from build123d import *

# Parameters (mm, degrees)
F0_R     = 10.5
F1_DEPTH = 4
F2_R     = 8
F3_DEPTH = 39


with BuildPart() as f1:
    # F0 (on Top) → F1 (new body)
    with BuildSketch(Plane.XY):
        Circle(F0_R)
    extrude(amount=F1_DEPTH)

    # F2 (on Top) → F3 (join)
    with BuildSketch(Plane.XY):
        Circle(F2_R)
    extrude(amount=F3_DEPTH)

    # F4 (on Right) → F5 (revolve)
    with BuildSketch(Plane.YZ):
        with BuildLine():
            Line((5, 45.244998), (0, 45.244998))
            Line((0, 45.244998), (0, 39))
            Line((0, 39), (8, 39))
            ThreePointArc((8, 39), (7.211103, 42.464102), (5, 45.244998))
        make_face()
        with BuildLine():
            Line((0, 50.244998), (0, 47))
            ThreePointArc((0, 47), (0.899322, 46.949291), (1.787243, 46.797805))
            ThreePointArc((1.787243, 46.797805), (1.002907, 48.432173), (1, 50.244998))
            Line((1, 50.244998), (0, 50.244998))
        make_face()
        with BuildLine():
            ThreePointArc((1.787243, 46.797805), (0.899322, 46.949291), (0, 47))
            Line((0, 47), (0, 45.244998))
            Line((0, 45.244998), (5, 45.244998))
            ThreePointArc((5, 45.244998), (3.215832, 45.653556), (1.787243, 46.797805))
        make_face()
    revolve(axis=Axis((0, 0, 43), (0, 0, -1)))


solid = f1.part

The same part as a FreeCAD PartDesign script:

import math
import FreeCAD as App
import Part
import Sketcher
from FreeCAD import Vector

doc = App.newDocument("Part")
body = doc.addObject("PartDesign::Body", "Body")

sketch1 = body.newObject("Sketcher::SketchObject", "Sketch")
sketch1.AttachmentSupport = (doc.getObject("XY_Plane"), [""])
sketch1.MapMode = "FlatFace"
sketch1.addGeometry(Part.Circle(Vector(0, 0, 0), Vector(0, 0, 1), 10), False)
sketch1.addConstraint(Sketcher.Constraint("Coincident", 0, 3, -1, 1))
sketch1.addConstraint(Sketcher.Constraint("Diameter", 0, 21.0))
pad1 = body.newObject("PartDesign::Pad", "Pad")
pad1.Profile = sketch1
pad1.Length = 4

sketch2 = body.newObject("Sketcher::SketchObject", "Sketch001")
sketch2.AttachmentSupport = (doc.getObject("XY_Plane"), [""])
sketch2.MapMode = "FlatFace"
sketch2.addGeometry(Part.Circle(Vector(0, 0, 0), Vector(0, 0, 1), 8), False)
sketch2.addConstraint(Sketcher.Constraint("Coincident", 0, 3, -1, 1))
sketch2.addConstraint(Sketcher.Constraint("Diameter", 0, 16.0))
pad2 = body.newObject("PartDesign::Pad", "Pad001")
pad2.Profile = sketch2
pad2.Length = 39

sketch3 = body.newObject("Sketcher::SketchObject", "Sketch002")
sketch3.AttachmentSupport = (doc.getObject("YZ_Plane"), [""])
sketch3.MapMode = "FlatFace"
sketch3.addGeometry(Part.LineSegment(Vector(0, 39, 0), Vector(8, 39, 0)), False)
sketch3.addGeometry(Part.ArcOfCircle(Part.Circle(Vector(0, 39, 0), Vector(0, 0, 1), 8), math.radians(0), math.radians(51)), False)
sketch3.addGeometry(Part.ArcOfCircle(Part.Circle(Vector(5, 49.3, 0), Vector(0, 0, 1), 4.1), math.radians(-142), math.radians(-90)), False)
sketch3.addGeometry(Part.ArcOfCircle(Part.Circle(Vector(5, 49.3, 0), Vector(0, 0, 1), 4.1), math.radians(167), math.radians(218)), False)
sketch3.addGeometry(Part.LineSegment(Vector(1, 50.2, 0), Vector(0, 50.2, 0)), False)
sketch3.addGeometry(Part.LineSegment(Vector(0, 50.2, 0), Vector(0, 39, 0)), False)
sketch3.addConstraint(Sketcher.Constraint("Coincident", 0, 2, 1, 1))
sketch3.addConstraint(Sketcher.Constraint("Coincident", 1, 2, 2, 2))
sketch3.addConstraint(Sketcher.Constraint("Tangent", 2, 1, 3, 2))
sketch3.addConstraint(Sketcher.Constraint("Coincident", 3, 1, 4, 1))
sketch3.addConstraint(Sketcher.Constraint("Coincident", 4, 2, 5, 1))
sketch3.addConstraint(Sketcher.Constraint("Coincident", 5, 2, 0, 1))
sketch3.addConstraint(Sketcher.Constraint("Horizontal", 0))
sketch3.addConstraint(Sketcher.Constraint("Horizontal", 4))
sketch3.addConstraint(Sketcher.Constraint("Vertical", 5))
sketch3.addConstraint(Sketcher.Constraint("Coincident", 5, 2, 1, 3))
sketch3.addConstraint(Sketcher.Constraint("PointOnObject", 4, 2, -2))
sketch3.addConstraint(Sketcher.Constraint("Vertical", 2, 3, 1, 2))
sketch3.addConstraint(Sketcher.Constraint("Radius", 2, 4.1))
sketch3.addConstraint(Sketcher.Constraint("DistanceX", 0, 1, 0, 2, 8.0))
sketch3.addConstraint(Sketcher.Constraint("DistanceX", 4, 2, 4, 1, 1.0))
sketch3.addConstraint(Sketcher.Constraint("DistanceX", -1, 1, 2, 3, 5.0))
sketch3.addConstraint(Sketcher.Constraint("DistanceY", -1, 1, 0, 2, 39.0))
sketch3.addConstraint(Sketcher.Constraint("DistanceY", 1, 2, 3, 1, 5.0))
sketch3.addConstraint(Sketcher.Constraint("DistanceX", -1, 1, 2, 1, 1.787243))
revolution = body.newObject("PartDesign::Revolution", "Revolution")
revolution.Profile = sketch3
revolution.ReferenceAxis = (sketch3, ["V_Axis"])
revolution.Angle = 360

doc.recompute()
